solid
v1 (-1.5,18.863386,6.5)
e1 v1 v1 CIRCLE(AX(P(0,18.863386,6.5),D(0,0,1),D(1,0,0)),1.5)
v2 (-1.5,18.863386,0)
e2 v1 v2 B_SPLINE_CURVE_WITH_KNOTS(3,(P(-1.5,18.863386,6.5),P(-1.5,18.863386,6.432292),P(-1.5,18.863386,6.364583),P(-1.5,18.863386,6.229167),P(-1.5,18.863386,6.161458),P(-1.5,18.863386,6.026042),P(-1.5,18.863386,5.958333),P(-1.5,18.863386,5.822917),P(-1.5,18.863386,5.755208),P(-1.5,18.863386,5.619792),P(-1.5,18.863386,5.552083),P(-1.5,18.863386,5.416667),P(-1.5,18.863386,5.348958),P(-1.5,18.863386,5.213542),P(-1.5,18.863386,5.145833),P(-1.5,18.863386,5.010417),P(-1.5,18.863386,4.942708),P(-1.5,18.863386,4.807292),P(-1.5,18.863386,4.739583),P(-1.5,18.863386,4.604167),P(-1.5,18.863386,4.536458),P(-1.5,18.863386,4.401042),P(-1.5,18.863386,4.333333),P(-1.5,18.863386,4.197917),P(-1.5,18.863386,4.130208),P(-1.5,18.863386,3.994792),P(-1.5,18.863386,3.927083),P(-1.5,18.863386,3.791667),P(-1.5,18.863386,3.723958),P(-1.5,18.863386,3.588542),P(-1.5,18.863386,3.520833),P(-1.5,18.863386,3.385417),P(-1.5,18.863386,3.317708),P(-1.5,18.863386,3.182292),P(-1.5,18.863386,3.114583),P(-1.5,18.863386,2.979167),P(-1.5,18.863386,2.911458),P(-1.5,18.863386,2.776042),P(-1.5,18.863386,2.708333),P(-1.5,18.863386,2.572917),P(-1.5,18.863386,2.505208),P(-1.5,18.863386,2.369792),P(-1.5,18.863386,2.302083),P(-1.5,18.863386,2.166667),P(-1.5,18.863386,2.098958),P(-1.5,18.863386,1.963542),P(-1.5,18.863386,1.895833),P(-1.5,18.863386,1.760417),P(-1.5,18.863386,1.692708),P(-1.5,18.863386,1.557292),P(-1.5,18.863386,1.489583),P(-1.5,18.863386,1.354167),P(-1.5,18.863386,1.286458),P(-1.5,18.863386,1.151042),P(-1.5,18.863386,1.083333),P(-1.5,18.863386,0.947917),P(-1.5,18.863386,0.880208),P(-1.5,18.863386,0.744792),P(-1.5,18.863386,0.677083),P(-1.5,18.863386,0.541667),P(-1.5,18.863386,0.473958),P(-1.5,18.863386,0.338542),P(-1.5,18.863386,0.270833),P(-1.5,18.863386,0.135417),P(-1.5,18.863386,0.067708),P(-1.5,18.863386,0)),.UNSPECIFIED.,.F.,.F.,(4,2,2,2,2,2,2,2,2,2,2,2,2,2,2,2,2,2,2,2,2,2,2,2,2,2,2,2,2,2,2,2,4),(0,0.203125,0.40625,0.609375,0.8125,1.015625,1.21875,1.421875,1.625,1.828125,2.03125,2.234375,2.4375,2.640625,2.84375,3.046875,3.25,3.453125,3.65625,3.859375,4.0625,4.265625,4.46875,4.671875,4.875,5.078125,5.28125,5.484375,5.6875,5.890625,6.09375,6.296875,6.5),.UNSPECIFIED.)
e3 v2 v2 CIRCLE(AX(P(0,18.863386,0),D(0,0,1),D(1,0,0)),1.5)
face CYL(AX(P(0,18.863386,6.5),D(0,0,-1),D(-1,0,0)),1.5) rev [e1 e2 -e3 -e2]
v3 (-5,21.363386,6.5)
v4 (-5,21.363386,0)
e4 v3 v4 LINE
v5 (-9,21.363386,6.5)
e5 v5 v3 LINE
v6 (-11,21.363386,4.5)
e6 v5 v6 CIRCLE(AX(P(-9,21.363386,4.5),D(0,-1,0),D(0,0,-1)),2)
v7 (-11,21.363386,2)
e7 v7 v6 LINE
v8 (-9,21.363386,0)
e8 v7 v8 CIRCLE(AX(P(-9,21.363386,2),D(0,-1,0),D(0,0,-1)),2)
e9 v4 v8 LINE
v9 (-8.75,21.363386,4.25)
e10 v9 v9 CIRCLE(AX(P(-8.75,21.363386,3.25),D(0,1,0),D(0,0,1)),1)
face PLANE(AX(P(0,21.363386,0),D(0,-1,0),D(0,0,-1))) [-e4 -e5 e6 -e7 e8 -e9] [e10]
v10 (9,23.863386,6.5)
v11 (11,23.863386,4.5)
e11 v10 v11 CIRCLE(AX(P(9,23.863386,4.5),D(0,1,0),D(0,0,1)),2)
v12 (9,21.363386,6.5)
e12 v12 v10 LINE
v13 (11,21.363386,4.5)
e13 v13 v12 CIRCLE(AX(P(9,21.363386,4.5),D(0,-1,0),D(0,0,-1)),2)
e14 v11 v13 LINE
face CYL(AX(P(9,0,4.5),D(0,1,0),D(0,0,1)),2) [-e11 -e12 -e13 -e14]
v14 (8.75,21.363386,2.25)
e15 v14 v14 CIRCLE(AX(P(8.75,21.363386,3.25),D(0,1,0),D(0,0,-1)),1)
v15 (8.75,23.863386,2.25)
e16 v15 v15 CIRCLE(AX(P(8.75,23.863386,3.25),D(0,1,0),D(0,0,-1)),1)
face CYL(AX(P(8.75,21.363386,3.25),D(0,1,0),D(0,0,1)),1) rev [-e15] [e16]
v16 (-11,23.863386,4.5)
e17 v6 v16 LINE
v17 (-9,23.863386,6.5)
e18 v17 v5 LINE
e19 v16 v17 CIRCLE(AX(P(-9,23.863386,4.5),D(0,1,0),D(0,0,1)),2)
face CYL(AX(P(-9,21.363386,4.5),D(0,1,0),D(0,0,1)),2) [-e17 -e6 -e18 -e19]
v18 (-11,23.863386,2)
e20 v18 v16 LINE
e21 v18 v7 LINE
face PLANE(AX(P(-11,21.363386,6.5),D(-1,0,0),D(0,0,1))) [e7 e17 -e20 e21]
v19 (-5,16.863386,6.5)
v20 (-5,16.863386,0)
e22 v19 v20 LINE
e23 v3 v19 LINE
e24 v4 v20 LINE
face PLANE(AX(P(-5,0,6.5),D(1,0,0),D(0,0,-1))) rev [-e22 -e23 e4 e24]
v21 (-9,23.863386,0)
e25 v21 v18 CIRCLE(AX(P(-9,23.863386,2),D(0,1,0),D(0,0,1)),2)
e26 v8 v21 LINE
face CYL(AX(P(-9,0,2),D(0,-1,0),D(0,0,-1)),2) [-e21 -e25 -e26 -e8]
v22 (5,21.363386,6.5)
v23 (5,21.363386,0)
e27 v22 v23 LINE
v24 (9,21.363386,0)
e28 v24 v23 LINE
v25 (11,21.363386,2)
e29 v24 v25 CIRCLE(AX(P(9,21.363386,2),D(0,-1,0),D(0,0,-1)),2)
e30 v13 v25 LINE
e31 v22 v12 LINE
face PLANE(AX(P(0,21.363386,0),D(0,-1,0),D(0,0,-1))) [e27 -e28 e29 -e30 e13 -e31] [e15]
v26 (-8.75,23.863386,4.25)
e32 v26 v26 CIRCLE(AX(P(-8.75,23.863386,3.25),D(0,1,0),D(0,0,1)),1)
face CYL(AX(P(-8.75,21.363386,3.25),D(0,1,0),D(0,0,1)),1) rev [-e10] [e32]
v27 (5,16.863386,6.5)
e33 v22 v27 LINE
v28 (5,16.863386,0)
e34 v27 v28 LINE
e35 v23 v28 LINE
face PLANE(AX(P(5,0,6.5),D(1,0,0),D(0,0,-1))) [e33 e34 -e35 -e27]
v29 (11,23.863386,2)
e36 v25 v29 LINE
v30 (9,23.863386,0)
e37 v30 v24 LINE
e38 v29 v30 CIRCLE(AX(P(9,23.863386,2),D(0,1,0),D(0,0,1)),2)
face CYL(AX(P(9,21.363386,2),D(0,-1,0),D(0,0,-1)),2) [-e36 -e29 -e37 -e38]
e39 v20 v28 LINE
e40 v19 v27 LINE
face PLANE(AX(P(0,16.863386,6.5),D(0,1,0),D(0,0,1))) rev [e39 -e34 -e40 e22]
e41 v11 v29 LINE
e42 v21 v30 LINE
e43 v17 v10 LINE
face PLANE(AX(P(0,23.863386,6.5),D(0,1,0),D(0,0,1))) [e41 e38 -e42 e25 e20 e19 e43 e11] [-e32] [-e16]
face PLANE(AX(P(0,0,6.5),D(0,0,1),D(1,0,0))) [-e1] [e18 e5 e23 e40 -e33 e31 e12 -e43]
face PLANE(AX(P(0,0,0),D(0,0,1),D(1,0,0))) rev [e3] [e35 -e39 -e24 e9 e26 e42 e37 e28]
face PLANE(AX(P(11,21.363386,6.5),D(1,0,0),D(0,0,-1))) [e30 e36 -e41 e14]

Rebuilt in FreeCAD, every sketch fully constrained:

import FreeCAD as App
import Part
import Sketcher

V = App.Vector
Q = App.Units.Quantity


def edges_at(feature, points):
    """Names of the edges that pass closest to the given points."""
    edges = feature.Shape.Edges
    near = lambda p: min(range(len(edges)), key=lambda i: edges[i].distToShape(Part.Vertex(*p))[0])
    return sorted({f"Edge{near(p) + 1}" for p in points})


def add_polygon(sketch, points):
    """Adds a closed chain of lines whose ends are joined by coincident constraints."""
    first, n = sketch.GeometryCount, len(points)
    for a, b in zip(points, points[1:] + points[:1]):
        sketch.addGeometry(Part.LineSegment(App.Vector(*a, 0), App.Vector(*b, 0)), False)
    for i in range(n):
        sketch.addConstraint(Sketcher.Constraint("Coincident", first + i, 2, first + (i + 1) % n, 1))

doc = App.newDocument("Part")
body = doc.addObject("PartDesign::Body", "Body")

# Sketch on XY plane
sketch1 = body.newObject("Sketcher::SketchObject", "Sketch")
sketch1.AttachmentSupport = (doc.getObject("XY_Plane"), [""])
sketch1.MapMode = "FlatFace"
add_polygon(sketch1, [(-5, 16.863386), (5, 16.863386), (5, 23.863386), (-5, 23.863386)])  # lines 0-3
sketch1.addGeometry(Part.Circle(V(0, 18.863386, 0), V(0, 0, 1), 1.5), False)  # 4
sketch1.addConstraint(Sketcher.Constraint("Horizontal", 0))
sketch1.addConstraint(Sketcher.Constraint("Vertical", 1))
sketch1.addConstraint(Sketcher.Constraint("Horizontal", 2))
sketch1.addConstraint(Sketcher.Constraint("Vertical", 3))
sketch1.addConstraint(Sketcher.Constraint("PointOnObject", 4, 3, -2))
sketch1.addConstraint(Sketcher.Constraint("Diameter", 4, Q("3 mm")))
sketch1.addConstraint(Sketcher.Constraint("DistanceX", 0, 1, 0, 2, Q("10 mm")))
sketch1.addConstraint(Sketcher.Constraint("DistanceY", 1, 1, 1, 2, Q("7 mm")))
sketch1.addConstraint(Sketcher.Constraint("DistanceX", -1, 1, 0, 2, Q("5 mm")))
sketch1.addConstraint(Sketcher.Constraint("DistanceY", 0, 2, 4, 3, Q("2 mm")))
sketch1.addConstraint(Sketcher.Constraint("DistanceY", -1, 1, 4, 3, Q("18.863386 mm")))
pad1 = body.newObject("PartDesign::Pad", "Pad")
pad1.Profile = sketch1
pad1.Length = 6.5

# Sketch on XZ plane
sketch2 = body.newObject("Sketcher::SketchObject", "Sketch001")
sketch2.AttachmentSupport = (doc.getObject("XZ_Plane"), [""])
sketch2.MapMode = "FlatFace"
sketch2.AttachmentOffset = App.Placement(V(0, 0, -23.863386), App.Rotation())
add_polygon(sketch2, [(-11, 0), (-11, 6.5), (11, 6.5), (11, 0)])  # lines 0-3
sketch2.addGeometry(Part.Circle(V(-8.75, 3.25, 0), V(0, 0, 1), 1), False)  # 4
sketch2.addGeometry(Part.Circle(V(8.75, 3.25, 0), V(0, 0, 1), 1), False)  # 5
sketch2.addConstraint(Sketcher.Constraint("Vertical", 0))
sketch2.addConstraint(Sketcher.Constraint("Horizontal", 1))
sketch2.addConstraint(Sketcher.Constraint("Vertical", 2))
sketch2.addConstraint(Sketcher.Constraint("Horizontal", 3))
sketch2.addConstraint(Sketcher.Constraint("Equal", 4, 5))
sketch2.addConstraint(Sketcher.Constraint("Symmetric", 2, 2, 3, 2, -1, 1))
sketch2.addConstraint(Sketcher.Constraint("Symmetric", 4, 3, 5, 3, -2))
sketch2.addConstraint(Sketcher.Constraint("Diameter", 4, Q("2 mm")))
sketch2.addConstraint(Sketcher.Constraint("DistanceX", 1, 1, 1, 2, Q("22 mm")))
sketch2.addConstraint(Sketcher.Constraint("DistanceY", 0, 1, 0, 2, Q("6.5 mm")))
sketch2.addConstraint(Sketcher.Constraint("DistanceX", 4, 3, 5, 3, Q("17.5 mm")))
sketch2.addConstraint(Sketcher.Constraint("DistanceY", -1, 1, 4, 3, Q("3.25 mm")))
pad2 = body.newObject("PartDesign::Pad", "Pad001")
pad2.Profile = sketch2
pad2.Length = 2.5
doc.recompute()

fillet = body.newObject("PartDesign::Fillet", "Fillet")
fillet.Base = (pad2, edges_at(pad2, [
    (-11, 22.613, 0),
    (11, 22.613, 0),
    (11, 22.613, 6.5),
    (-11, 22.613, 6.5),
]))
fillet.Radius = 2

doc.recompute()
